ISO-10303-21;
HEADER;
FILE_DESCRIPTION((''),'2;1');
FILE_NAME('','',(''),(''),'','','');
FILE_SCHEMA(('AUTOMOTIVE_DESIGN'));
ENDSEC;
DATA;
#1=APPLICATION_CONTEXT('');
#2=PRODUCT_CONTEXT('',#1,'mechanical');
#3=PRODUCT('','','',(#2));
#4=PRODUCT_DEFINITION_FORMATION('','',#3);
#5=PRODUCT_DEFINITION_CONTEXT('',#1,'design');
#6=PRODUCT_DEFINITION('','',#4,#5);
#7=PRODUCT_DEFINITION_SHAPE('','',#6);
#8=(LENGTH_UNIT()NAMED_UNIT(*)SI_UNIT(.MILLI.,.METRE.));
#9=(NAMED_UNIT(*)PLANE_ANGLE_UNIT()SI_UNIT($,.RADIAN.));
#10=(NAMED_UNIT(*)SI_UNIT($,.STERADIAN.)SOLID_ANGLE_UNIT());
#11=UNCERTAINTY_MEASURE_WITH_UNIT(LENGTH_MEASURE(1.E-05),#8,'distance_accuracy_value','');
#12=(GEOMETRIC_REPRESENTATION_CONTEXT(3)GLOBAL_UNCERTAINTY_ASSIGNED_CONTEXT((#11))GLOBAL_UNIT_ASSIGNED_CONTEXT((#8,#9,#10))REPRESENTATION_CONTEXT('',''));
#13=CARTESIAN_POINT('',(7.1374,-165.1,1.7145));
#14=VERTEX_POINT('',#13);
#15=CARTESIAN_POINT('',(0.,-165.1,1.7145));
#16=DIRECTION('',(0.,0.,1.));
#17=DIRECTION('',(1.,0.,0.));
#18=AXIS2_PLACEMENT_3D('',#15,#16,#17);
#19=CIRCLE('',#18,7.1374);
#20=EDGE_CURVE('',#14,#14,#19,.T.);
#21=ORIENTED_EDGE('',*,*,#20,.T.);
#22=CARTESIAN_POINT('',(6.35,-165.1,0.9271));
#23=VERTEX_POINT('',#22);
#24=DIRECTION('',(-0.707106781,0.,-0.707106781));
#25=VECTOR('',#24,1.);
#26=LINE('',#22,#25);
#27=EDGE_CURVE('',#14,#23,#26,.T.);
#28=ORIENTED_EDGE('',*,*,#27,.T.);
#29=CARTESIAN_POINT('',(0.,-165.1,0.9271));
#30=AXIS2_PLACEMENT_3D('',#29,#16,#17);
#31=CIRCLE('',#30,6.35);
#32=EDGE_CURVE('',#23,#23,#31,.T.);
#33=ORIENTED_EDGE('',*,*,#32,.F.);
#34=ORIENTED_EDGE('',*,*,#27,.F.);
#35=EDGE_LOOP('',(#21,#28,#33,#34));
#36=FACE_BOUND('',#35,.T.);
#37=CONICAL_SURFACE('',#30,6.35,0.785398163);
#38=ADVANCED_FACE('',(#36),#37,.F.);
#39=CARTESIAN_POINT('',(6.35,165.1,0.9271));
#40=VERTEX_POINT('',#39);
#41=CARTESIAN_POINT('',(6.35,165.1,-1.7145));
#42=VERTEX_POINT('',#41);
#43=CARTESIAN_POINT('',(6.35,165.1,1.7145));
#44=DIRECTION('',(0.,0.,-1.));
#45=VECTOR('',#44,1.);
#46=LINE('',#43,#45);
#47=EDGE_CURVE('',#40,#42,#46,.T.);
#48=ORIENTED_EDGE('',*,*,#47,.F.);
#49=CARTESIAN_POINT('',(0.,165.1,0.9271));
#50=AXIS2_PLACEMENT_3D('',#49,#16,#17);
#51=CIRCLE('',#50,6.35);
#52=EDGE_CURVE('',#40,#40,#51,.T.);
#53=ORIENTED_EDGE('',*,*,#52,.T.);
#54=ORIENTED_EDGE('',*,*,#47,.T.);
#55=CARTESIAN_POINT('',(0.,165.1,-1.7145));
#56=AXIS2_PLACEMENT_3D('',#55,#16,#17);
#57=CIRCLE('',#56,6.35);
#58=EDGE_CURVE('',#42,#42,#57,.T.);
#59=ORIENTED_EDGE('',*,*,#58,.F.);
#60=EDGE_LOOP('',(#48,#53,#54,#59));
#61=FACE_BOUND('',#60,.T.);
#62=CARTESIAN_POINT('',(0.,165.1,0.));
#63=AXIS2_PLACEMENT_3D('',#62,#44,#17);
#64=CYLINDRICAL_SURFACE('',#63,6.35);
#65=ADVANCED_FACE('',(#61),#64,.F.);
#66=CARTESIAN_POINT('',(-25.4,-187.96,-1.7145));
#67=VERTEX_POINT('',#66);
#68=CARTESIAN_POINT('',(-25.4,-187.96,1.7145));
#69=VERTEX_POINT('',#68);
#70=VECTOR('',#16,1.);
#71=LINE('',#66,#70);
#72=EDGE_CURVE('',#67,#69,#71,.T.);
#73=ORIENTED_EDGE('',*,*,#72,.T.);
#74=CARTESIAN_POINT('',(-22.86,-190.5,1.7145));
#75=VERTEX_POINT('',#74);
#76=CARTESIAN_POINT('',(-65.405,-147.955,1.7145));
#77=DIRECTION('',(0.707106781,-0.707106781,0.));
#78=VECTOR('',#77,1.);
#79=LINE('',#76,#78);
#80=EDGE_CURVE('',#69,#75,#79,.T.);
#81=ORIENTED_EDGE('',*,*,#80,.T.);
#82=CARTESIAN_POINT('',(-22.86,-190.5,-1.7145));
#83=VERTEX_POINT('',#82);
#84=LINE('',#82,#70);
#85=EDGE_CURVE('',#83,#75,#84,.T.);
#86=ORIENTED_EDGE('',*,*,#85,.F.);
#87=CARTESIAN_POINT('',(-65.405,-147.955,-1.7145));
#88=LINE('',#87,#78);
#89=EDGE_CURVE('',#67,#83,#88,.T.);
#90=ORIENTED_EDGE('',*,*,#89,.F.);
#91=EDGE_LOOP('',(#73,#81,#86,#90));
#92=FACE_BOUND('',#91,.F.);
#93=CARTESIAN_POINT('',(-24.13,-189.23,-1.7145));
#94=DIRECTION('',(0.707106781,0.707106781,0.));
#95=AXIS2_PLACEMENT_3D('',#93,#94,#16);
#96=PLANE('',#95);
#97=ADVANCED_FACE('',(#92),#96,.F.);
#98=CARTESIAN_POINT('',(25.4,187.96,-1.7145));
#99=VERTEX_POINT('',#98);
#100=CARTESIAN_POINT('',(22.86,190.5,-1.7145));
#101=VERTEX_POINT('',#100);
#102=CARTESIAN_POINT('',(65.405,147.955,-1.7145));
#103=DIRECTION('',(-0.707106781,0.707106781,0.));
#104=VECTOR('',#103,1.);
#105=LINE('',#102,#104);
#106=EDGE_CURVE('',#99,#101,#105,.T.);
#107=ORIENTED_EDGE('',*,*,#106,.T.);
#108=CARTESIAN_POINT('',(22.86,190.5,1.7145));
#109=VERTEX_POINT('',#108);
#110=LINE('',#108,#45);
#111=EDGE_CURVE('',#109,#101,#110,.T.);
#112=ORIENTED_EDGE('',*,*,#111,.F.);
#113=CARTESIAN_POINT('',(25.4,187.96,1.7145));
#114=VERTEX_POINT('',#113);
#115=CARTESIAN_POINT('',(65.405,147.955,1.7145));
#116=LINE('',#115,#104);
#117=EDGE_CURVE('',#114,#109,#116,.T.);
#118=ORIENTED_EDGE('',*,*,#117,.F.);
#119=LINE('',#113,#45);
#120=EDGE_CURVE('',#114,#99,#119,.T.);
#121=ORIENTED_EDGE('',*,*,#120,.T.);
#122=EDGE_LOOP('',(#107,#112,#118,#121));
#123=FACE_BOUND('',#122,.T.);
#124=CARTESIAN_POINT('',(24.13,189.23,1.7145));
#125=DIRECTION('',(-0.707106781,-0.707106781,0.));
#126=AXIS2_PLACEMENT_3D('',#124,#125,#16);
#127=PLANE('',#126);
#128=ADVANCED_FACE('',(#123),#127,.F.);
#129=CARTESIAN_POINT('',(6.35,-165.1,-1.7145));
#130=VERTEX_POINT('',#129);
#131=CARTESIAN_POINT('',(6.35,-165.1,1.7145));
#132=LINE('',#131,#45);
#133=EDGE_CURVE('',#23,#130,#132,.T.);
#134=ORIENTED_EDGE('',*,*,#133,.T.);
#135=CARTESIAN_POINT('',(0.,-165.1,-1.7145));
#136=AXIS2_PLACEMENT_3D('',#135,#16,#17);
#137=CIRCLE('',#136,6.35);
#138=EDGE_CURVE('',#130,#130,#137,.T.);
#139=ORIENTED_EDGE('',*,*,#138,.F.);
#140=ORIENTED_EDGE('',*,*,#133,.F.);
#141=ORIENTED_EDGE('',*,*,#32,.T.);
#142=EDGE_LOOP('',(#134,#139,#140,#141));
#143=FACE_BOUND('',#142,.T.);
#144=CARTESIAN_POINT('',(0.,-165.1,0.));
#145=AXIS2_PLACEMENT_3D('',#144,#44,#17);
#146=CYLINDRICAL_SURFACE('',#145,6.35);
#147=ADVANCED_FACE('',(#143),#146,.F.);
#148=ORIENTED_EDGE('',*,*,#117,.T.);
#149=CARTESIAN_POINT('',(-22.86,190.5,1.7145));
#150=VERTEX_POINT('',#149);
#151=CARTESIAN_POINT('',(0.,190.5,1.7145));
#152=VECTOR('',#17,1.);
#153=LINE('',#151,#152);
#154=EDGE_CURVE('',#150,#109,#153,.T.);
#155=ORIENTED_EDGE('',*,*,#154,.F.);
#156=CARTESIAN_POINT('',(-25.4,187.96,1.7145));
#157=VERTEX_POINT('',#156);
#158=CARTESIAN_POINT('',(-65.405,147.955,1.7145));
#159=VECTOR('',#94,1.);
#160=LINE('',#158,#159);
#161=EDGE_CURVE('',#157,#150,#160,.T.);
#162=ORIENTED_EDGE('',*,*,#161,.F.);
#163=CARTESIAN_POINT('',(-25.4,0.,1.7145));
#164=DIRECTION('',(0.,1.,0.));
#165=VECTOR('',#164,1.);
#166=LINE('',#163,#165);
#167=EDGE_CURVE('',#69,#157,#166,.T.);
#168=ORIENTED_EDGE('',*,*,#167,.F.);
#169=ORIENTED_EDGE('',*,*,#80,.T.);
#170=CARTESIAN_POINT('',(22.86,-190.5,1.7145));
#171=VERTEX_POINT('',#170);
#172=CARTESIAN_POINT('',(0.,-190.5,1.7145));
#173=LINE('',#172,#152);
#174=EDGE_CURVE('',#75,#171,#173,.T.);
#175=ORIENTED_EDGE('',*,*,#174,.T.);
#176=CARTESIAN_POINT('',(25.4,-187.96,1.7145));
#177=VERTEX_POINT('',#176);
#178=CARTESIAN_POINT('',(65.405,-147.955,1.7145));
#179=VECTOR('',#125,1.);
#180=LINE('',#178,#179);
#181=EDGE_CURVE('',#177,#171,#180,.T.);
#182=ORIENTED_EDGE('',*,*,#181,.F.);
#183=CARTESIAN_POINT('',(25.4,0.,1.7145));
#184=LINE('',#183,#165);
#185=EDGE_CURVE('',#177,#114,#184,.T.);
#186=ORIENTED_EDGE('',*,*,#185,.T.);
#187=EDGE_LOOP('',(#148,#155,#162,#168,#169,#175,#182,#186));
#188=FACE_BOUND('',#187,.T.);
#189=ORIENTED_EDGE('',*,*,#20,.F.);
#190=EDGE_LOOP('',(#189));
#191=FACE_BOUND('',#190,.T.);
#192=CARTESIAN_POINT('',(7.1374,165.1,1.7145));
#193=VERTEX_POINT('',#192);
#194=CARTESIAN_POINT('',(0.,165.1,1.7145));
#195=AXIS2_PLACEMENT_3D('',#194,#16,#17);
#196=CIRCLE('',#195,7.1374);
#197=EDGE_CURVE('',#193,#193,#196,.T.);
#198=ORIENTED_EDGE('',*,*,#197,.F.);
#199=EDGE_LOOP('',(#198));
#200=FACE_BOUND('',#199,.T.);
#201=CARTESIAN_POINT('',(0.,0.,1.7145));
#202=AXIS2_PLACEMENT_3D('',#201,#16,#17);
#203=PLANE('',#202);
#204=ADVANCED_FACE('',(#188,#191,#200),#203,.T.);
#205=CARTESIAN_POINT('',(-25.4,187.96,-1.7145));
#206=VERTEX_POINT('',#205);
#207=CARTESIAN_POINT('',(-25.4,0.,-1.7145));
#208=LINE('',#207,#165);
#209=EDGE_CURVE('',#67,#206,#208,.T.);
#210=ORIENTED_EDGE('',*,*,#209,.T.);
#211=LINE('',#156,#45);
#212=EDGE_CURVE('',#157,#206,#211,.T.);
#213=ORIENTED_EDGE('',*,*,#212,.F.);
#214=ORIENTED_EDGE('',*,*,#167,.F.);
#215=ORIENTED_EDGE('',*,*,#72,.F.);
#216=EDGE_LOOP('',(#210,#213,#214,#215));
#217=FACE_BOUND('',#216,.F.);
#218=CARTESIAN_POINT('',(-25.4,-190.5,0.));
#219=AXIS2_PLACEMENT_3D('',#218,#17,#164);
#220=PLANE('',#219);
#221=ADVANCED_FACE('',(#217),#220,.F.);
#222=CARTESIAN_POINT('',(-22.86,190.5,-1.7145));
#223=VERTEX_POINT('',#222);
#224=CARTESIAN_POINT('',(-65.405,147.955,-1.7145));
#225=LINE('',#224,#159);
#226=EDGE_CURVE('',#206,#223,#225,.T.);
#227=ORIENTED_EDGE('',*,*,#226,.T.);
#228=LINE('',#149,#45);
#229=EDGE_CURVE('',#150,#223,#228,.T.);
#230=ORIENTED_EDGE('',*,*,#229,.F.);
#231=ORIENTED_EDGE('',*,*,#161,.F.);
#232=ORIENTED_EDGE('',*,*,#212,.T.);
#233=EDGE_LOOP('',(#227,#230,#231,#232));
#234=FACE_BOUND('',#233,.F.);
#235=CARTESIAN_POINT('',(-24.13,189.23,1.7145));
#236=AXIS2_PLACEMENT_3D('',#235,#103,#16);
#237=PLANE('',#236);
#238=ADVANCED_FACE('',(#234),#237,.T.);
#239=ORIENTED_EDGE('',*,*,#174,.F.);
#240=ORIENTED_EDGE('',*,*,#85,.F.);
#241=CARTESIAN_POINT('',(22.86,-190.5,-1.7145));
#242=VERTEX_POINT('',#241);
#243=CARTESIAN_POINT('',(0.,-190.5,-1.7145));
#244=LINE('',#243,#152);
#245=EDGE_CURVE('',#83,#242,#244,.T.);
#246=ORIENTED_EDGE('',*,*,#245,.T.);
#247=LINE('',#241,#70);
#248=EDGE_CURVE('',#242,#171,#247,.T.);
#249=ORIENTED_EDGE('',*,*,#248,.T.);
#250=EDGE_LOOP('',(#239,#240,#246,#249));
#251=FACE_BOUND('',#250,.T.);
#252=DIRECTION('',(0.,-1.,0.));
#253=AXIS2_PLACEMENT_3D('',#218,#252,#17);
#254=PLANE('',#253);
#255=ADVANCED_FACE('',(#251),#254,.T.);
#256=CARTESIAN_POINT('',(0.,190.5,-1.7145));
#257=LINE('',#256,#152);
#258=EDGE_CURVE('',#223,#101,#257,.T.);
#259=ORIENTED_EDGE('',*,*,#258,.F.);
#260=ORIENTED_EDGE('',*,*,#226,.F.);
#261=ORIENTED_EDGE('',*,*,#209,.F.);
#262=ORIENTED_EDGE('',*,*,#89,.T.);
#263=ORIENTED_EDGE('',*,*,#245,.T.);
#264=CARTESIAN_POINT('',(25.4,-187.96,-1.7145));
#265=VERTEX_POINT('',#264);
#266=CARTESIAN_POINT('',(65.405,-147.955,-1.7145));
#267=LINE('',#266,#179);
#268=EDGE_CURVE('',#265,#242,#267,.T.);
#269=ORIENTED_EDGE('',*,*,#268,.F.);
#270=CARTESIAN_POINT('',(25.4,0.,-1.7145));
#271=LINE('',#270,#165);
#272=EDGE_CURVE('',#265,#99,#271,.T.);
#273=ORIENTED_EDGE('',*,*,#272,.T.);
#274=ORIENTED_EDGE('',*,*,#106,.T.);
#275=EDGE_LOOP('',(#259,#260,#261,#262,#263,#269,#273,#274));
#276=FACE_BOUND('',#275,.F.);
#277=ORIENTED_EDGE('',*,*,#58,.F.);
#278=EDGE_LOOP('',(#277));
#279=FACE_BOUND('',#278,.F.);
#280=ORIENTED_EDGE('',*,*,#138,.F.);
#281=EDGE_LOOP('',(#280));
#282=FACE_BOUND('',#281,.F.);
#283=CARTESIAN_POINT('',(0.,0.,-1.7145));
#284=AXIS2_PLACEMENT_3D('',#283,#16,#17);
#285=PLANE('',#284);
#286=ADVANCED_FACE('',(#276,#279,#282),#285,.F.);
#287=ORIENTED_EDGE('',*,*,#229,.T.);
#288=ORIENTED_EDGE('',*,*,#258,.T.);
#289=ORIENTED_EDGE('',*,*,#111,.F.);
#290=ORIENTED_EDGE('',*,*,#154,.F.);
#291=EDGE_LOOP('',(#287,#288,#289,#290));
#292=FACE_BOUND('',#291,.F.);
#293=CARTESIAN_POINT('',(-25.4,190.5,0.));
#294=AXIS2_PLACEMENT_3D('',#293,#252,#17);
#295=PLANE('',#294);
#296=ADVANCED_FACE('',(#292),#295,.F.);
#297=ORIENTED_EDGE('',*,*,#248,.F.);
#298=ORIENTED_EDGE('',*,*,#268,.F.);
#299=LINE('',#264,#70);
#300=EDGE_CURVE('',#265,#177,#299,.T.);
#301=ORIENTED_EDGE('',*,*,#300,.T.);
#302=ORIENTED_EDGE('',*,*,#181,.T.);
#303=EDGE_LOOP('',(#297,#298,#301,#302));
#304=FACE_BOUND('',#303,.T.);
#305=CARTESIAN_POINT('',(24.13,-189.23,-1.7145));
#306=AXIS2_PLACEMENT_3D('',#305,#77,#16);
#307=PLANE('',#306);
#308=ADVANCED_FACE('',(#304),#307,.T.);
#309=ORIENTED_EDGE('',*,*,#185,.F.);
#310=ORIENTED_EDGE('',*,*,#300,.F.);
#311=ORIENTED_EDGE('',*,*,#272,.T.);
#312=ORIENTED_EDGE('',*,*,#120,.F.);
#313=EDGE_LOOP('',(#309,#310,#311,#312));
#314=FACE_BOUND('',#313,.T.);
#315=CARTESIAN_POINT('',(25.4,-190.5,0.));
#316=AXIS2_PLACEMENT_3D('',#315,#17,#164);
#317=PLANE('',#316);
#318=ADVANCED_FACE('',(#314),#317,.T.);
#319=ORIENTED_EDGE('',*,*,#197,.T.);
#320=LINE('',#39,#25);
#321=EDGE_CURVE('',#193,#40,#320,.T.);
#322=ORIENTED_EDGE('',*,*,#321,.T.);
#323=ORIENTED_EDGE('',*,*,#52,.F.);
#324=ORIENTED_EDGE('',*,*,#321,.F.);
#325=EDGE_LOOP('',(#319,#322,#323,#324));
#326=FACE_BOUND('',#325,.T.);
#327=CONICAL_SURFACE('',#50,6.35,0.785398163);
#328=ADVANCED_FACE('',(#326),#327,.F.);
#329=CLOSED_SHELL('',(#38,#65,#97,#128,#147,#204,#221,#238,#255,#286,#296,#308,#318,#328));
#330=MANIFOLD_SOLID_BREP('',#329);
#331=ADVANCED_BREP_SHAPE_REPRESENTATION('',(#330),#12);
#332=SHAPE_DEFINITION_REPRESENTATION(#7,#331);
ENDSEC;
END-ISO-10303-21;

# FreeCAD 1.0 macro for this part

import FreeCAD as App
import Part
import Sketcher
Q = App.Units.Quantity


def edges_at(feature, points):
    """Names of the edges that pass closest to the given points."""
    edges = feature.Shape.Edges
    near = lambda p: min(range(len(edges)), key=lambda i: edges[i].distToShape(Part.Vertex(*p))[0])
    return sorted({f"Edge{near(p) + 1}" for p in points})

doc = App.newDocument("Part")
body = doc.addObject("PartDesign::Body", "Body")

# Sketch on XY plane
sketch1 = doc.addObject("Sketcher::SketchObject", "Sketch")
body.addObject(sketch1)
sketch1.AttachmentSupport = (doc.XY_Plane, [""])
sketch1.MapMode = "FlatFace"
sketch1.addGeometry([
    Part.LineSegment(App.Vector(-25, 190, 0), App.Vector(-25, -190, 0)),  # 0
    Part.LineSegment(App.Vector(-25, -190, 0), App.Vector(25, -190, 0)),  # 1
    Part.LineSegment(App.Vector(25, -190, 0), App.Vector(25, 190, 0)),  # 2
    Part.LineSegment(App.Vector(25, 190, 0), App.Vector(-25, 190, 0)),  # 3
    Part.Circle(App.Vector(0, -165, 0), App.Vector(0, 0, 1), 6),  # 4
    Part.Circle(App.Vector(0, 165, 0), App.Vector(0, 0, 1), 6),  # 5
], False)
sketch1.addConstraint([
    Sketcher.Constraint("Coincident", 0, 2, 1, 1),
    Sketcher.Constraint("Coincident", 1, 2, 2, 1),
    Sketcher.Constraint("Coincident", 2, 2, 3, 1),
    Sketcher.Constraint("Coincident", 3, 2, 0, 1),
    Sketcher.Constraint("Vertical", 0),
    Sketcher.Constraint("Horizontal", 1),
    Sketcher.Constraint("Vertical", 2),
    Sketcher.Constraint("Horizontal", 3),
    Sketcher.Constraint("Equal", 4, 5),
    Sketcher.Constraint("Symmetric", 4, 3, 5, 3, -1, 1),
    Sketcher.Constraint("Symmetric", 0, 2, 2, 2, -1, 1),
    Sketcher.Constraint("PointOnObject", 4, 3, -2),
    Sketcher.Constraint("Diameter", 4, Q("0.5 in")),
    Sketcher.Constraint("DistanceX", 1, 1, 1, 2, Q("2 in")),
    Sketcher.Constraint("DistanceY", 0, 2, 0, 1, Q("15 in")),
    Sketcher.Constraint("DistanceY", 4, 3, 5, 3, Q("13 in")),
])
pad1 = doc.addObject("PartDesign::Pad", "Pad")
body.addObject(pad1)
pad1.Profile = sketch1
pad1.Length = Q("0.135 in")
pad1.Midplane = True
doc.recompute()

chamfer = doc.addObject("PartDesign::Chamfer", "Chamfer")
body.addObject(chamfer)
chamfer.Base = (pad1, edges_at(pad1, [
    (25.4, -190.5, 0),
    (-25.4, -190.5, 0),
    (-25.4, 190.5, 0),
    (25.4, 190.5, 0),
]))
chamfer.Size = Q("0.1 in")
doc.recompute()

chamfer2 = doc.addObject("PartDesign::Chamfer", "Chamfer001")
body.addObject(chamfer2)
chamfer2.Base = (chamfer, edges_at(chamfer, [(-6.35, -165.1, 1.714), (-6.35, 165.1, 1.714)]))
chamfer2.Size = Q("0.031 in")

doc.recompute()
